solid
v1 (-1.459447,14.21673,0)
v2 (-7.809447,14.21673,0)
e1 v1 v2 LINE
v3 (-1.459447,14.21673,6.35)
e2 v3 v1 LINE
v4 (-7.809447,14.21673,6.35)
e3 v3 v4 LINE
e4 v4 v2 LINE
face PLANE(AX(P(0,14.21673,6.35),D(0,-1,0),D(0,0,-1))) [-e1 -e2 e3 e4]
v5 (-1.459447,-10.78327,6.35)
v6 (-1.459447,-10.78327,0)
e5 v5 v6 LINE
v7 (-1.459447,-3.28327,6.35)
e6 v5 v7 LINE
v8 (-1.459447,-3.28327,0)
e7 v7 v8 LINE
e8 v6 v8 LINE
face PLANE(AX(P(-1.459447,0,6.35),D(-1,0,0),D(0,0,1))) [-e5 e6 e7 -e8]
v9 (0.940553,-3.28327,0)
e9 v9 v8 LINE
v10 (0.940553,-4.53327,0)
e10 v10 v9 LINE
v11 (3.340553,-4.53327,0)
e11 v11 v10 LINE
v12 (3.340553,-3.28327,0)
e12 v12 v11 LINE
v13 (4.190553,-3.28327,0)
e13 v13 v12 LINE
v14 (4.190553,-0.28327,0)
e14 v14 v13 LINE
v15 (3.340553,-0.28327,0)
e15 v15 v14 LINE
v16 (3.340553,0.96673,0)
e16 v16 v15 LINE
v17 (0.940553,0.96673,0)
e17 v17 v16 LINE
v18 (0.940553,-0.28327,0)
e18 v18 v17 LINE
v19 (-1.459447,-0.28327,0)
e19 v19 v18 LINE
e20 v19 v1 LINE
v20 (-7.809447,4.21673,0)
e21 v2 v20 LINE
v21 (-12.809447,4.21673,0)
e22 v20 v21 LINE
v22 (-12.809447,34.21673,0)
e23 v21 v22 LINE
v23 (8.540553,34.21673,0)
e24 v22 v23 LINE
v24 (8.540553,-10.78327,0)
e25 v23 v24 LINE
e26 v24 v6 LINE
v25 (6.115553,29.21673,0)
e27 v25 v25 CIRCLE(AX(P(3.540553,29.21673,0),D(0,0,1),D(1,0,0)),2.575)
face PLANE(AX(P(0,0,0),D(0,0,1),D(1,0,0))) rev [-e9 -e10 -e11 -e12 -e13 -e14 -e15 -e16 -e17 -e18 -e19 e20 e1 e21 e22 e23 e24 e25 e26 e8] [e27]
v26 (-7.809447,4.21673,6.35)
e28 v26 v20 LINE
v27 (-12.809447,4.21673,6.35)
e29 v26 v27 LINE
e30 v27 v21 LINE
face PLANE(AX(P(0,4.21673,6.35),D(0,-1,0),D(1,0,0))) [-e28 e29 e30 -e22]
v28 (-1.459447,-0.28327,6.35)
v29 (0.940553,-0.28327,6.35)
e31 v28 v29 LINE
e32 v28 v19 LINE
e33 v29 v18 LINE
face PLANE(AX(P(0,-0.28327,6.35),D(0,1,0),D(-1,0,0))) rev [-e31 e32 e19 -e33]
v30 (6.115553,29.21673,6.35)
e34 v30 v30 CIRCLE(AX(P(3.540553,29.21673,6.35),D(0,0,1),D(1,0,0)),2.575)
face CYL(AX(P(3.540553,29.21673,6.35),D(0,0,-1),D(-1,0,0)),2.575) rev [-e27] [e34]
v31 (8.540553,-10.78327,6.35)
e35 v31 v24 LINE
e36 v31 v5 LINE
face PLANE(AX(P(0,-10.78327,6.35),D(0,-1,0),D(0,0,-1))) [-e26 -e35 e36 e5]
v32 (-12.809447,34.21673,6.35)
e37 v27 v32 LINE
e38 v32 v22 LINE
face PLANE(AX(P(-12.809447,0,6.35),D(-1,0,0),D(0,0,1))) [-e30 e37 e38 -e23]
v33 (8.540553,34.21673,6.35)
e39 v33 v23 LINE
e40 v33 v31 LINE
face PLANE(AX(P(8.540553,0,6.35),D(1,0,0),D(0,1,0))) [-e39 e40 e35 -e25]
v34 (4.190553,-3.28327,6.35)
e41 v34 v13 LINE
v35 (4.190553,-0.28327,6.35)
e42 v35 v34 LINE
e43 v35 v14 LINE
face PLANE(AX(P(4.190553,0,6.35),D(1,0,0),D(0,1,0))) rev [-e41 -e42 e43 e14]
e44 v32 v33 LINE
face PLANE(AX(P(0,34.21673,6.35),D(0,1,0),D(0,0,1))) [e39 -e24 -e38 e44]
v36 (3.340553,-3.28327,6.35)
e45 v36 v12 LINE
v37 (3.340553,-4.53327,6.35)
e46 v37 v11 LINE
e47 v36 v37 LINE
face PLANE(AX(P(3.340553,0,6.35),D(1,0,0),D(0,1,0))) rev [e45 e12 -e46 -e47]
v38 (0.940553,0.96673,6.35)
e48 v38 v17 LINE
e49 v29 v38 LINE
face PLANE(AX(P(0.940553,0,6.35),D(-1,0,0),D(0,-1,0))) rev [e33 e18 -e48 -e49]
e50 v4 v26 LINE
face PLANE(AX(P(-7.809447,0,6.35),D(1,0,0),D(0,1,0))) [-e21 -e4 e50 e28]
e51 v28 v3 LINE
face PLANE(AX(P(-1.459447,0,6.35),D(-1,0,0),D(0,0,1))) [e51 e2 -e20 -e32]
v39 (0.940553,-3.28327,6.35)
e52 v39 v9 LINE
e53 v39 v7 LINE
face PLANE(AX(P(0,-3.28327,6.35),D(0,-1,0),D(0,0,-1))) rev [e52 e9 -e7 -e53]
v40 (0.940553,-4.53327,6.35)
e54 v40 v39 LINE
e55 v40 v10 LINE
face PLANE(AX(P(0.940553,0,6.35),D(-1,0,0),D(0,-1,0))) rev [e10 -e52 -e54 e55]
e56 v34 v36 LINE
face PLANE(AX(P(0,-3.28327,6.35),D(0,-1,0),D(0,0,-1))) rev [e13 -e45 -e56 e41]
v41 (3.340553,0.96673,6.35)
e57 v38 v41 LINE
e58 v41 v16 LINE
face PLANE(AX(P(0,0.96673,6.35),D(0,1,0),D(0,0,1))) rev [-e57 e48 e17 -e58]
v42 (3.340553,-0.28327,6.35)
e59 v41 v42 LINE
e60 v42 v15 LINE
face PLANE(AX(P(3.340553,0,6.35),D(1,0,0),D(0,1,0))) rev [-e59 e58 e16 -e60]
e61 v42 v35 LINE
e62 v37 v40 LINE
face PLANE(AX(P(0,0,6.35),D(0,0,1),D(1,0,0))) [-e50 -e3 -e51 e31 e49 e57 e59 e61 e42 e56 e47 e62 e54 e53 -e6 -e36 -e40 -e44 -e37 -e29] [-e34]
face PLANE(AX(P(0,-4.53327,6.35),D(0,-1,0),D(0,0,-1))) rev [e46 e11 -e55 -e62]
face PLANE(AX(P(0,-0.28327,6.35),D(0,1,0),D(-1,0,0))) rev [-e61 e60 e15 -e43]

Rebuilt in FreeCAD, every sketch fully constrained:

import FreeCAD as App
import Part
import Sketcher

doc = App.newDocument("Part")
body = doc.addObject("PartDesign::Body", "Body")

# Sketch on XY plane
sketch1 = body.newObject("Sketcher::SketchObject", "Sketch")
sketch1.AttachmentSupport = (doc.getObject("XY_Plane"), [""])
sketch1.MapMode = "FlatFace"
sketch1.addGeometry(Part.LineSegment(App.Vector(8.5, -10.8, 0), App.Vector(8.5, 34.2, 0)), False)
sketch1.addGeometry(Part.LineSegment(App.Vector(8.5, 34.2, 0), App.Vector(-12.8, 34.2, 0)), False)
sketch1.addGeometry(Part.LineSegment(App.Vector(-12.8, 34.2, 0), App.Vector(-12.8, 4.2, 0)), False)
sketch1.addGeometry(Part.LineSegment(App.Vector(-12.8, 4.2, 0), App.Vector(-7.8, 4.2, 0)), False)
sketch1.addGeometry(Part.LineSegment(App.Vector(-7.8, 4.2, 0), App.Vector(-7.8, 14.2, 0)), False)
sketch1.addGeometry(Part.LineSegment(App.Vector(-7.8, 14.2, 0), App.Vector(-1.5, 14.2, 0)), False)
sketch1.addGeometry(Part.LineSegment(App.Vector(-1.5, 14.2, 0), App.Vector(-1.5, -0.3, 0)), False)
sketch1.addGeometry(Part.LineSegment(App.Vector(-1.5, -0.3, 0), App.Vector(0.9, -0.3, 0)), False)
sketch1.addGeometry(Part.LineSegment(App.Vector(0.9, -0.3, 0), App.Vector(0.9, 1, 0)), False)
sketch1.addGeometry(Part.LineSegment(App.Vector(0.9, 1, 0), App.Vector(3.3, 1, 0)), False)
sketch1.addGeometry(Part.LineSegment(App.Vector(3.3, 1, 0), App.Vector(3.3, -0.3, 0)), False)
sketch1.addGeometry(Part.LineSegment(App.Vector(3.3, -0.3, 0), App.Vector(4.2, -0.3, 0)), False)
sketch1.addGeometry(Part.LineSegment(App.Vector(4.2, -0.3, 0), App.Vector(4.2, -3.3, 0)), False)
sketch1.addGeometry(Part.LineSegment(App.Vector(4.2, -3.3, 0), App.Vector(3.3, -3.3, 0)), False)
sketch1.addGeometry(Part.LineSegment(App.Vector(3.3, -3.3, 0), App.Vector(3.3, -4.5, 0)), False)
sketch1.addGeometry(Part.LineSegment(App.Vector(3.3, -4.5, 0), App.Vector(0.9, -4.5, 0)), False)
sketch1.addGeometry(Part.LineSegment(App.Vector(0.9, -4.5, 0), App.Vector(0.9, -3.3, 0)), False)
sketch1.addGeometry(Part.LineSegment(App.Vector(0.9, -3.3, 0), App.Vector(-1.5, -3.3, 0)), False)
sketch1.addGeometry(Part.LineSegment(App.Vector(-1.5, -3.3, 0), App.Vector(-1.5, -10.8, 0)), False)
sketch1.addGeometry(Part.LineSegment(App.Vector(-1.5, -10.8, 0), App.Vector(8.5, -10.8, 0)), False)
sketch1.addGeometry(Part.Circle(App.Vector(3.5, 29.2, 0), App.Vector(0, 0, 1), 2.6), False)
sketch1.addConstraint(Sketcher.Constraint("Coincident", 0, 2, 1, 1))
sketch1.addConstraint(Sketcher.Constraint("Coincident", 1, 2, 2, 1))
sketch1.addConstraint(Sketcher.Constraint("Coincident", 2, 2, 3, 1))
sketch1.addConstraint(Sketcher.Constraint("Coincident", 3, 2, 4, 1))
sketch1.addConstraint(Sketcher.Constraint("Coincident", 4, 2, 5, 1))
sketch1.addConstraint(Sketcher.Constraint("Coincident", 5, 2, 6, 1))
sketch1.addConstraint(Sketcher.Constraint("Coincident", 6, 2, 7, 1))
sketch1.addConstraint(Sketcher.Constraint("Coincident", 7, 2, 8, 1))
sketch1.addConstraint(Sketcher.Constraint("Coincident", 8, 2, 9, 1))
sketch1.addConstraint(Sketcher.Constraint("Coincident", 9, 2, 10, 1))
sketch1.addConstraint(Sketcher.Constraint("Coincident", 10, 2, 11, 1))
sketch1.addConstraint(Sketcher.Constraint("Coincident", 11, 2, 12, 1))
sketch1.addConstraint(Sketcher.Constraint("Coincident", 12, 2, 13, 1))
sketch1.addConstraint(Sketcher.Constraint("Coincident", 13, 2, 14, 1))
sketch1.addConstraint(Sketcher.Constraint("Coincident", 14, 2, 15, 1))
sketch1.addConstraint(Sketcher.Constraint("Coincident", 15, 2, 16, 1))
sketch1.addConstraint(Sketcher.Constraint("Coincident", 16, 2, 17, 1))
sketch1.addConstraint(Sketcher.Constraint("Coincident", 17, 2, 18, 1))
sketch1.addConstraint(Sketcher.Constraint("Coincident", 18, 2, 19, 1))
sketch1.addConstraint(Sketcher.Constraint("Coincident", 19, 2, 0, 1))
sketch1.addConstraint(Sketcher.Constraint("Vertical", 0))
sketch1.addConstraint(Sketcher.Constraint("Horizontal", 1))
sketch1.addConstraint(Sketcher.Constraint("Vertical", 2))
sketch1.addConstraint(Sketcher.Constraint("Horizontal", 3))
sketch1.addConstraint(Sketcher.Constraint("Vertical", 4))
sketch1.addConstraint(Sketcher.Constraint("Horizontal", 5))
sketch1.addConstraint(Sketcher.Constraint("Vertical", 6))
sketch1.addConstraint(Sketcher.Constraint("Horizontal", 7))
sketch1.addConstraint(Sketcher.Constraint("Vertical", 8))
sketch1.addConstraint(Sketcher.Constraint("Horizontal", 9))
sketch1.addConstraint(Sketcher.Constraint("Vertical", 10))
sketch1.addConstraint(Sketcher.Constraint("Horizontal", 11))
sketch1.addConstraint(Sketcher.Constraint("Vertical", 12))
sketch1.addConstraint(Sketcher.Constraint("Horizontal", 13))
sketch1.addConstraint(Sketcher.Constraint("Vertical", 14))
sketch1.addConstraint(Sketcher.Constraint("Horizontal", 15))
sketch1.addConstraint(Sketcher.Constraint("Vertical", 16))
sketch1.addConstraint(Sketcher.Constraint("Horizontal", 17))
sketch1.addConstraint(Sketcher.Constraint("Vertical", 18))
sketch1.addConstraint(Sketcher.Constraint("Horizontal", 19))
sketch1.addConstraint(Sketcher.Constraint("Horizontal", 7, 2, 10, 2))
sketch1.addConstraint(Sketcher.Constraint("Horizontal", 13, 2, 16, 2))
sketch1.addConstraint(Sketcher.Constraint("Vertical", 10, 2, 13, 2))
sketch1.addConstraint(Sketcher.Constraint("Vertical", 8, 2, 15, 2))
sketch1.addConstraint(Sketcher.Constraint("Vertical", 6, 2, 17, 2))
sketch1.addConstraint(Sketcher.Constraint("Equal", 7, 9))
sketch1.addConstraint(Sketcher.Constraint("Equal", 19, 4))
sketch1.addConstraint(Sketcher.Constraint("Equal", 10, 14))
sketch1.addConstraint(Sketcher.Constraint("Diameter", 20, 5.15))
sketch1.addConstraint(Sketcher.Constraint("DistanceX", 3, 1, 3, 2, 5.0))
sketch1.addConstraint(Sketcher.Constraint("DistanceX", 19, 1, 19, 2, 10.0))
sketch1.addConstraint(Sketcher.Constraint("DistanceY", 0, 1, 0, 2, 45.0))
sketch1.addConstraint(Sketcher.Constraint("DistanceY", 2, 2, 2, 1, 30.0))
sketch1.addConstraint(Sketcher.Constraint("DistanceY", 12, 2, 12, 1, 3.0))
sketch1.addConstraint(Sketcher.Constraint("DistanceX", 7, 1, 7, 2, 2.4))
sketch1.addConstraint(Sketcher.Constraint("DistanceY", 6, 2, 6, 1, 14.5))
sketch1.addConstraint(Sketcher.Constraint("DistanceX", 20, 3, 0, 2, 5.0))
sketch1.addConstraint(Sketcher.Constraint("DistanceY", 20, 3, 0, 2, 5.0))
sketch1.addConstraint(Sketcher.Constraint("DistanceX", 1, 2, 1, 1, 21.35))
sketch1.addConstraint(Sketcher.Constraint("DistanceX", 11, 1, 11, 2, 0.85))
sketch1.addConstraint(Sketcher.Constraint("DistanceY", 8, 1, 8, 2, 1.25))
sketch1.addConstraint(Sketcher.Constraint("DistanceY", -1, 1, 20, 3, 29.21673))
sketch1.addConstraint(Sketcher.Constraint("DistanceX", -1, 1, 20, 3, 3.540553))
pad1 = body.newObject("PartDesign::Pad", "Pad")
pad1.Profile = sketch1
pad1.Length = 6.35

doc.recompute()
